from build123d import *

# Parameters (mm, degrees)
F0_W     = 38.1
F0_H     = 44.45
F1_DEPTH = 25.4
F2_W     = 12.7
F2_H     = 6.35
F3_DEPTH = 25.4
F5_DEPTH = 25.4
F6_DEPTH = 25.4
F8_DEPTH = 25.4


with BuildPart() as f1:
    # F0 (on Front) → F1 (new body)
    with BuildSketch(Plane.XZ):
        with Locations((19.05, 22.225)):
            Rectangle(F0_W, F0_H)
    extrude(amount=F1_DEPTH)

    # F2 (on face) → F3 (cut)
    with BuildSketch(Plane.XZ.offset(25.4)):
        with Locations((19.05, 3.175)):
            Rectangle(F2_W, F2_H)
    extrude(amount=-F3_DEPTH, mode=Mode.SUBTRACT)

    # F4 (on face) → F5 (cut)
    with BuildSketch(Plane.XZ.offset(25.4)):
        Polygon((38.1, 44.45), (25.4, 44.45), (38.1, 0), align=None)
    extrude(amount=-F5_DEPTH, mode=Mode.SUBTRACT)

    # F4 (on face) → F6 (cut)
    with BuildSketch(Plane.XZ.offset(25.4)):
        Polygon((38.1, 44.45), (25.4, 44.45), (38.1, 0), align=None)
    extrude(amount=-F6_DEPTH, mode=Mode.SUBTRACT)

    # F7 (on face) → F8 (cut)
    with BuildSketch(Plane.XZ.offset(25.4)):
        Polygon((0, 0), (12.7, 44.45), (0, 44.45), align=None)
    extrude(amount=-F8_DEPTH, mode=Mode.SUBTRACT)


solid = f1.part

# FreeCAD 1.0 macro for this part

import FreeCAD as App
import Part
import Sketcher
Q = App.Units.Quantity

doc = App.newDocument("Part")
body = doc.addObject("PartDesign::Body", "Body")

# Sketch on XZ plane
sketch1 = body.newObject("Sketcher::SketchObject", "Sketch")
sketch1.AttachmentSupport = (doc.getObject("XZ_Plane"), [""])
sketch1.MapMode = "FlatFace"
sketch1.addGeometry([
    Part.LineSegment(App.Vector(0, 44, 0), App.Vector(0, 0, 0)),
    Part.LineSegment(App.Vector(0, 0, 0), App.Vector(38, 0, 0)),
    Part.LineSegment(App.Vector(38, 0, 0), App.Vector(38, 44, 0)),
    Part.LineSegment(App.Vector(38, 44, 0), App.Vector(0, 44, 0)),
], False)
sketch1.addConstraint([
    Sketcher.Constraint("Coincident", 0, 2, 1, 1),
    Sketcher.Constraint("Coincident", 1, 2, 2, 1),
    Sketcher.Constraint("Coincident", 2, 2, 3, 1),
    Sketcher.Constraint("Coincident", 3, 2, 0, 1),
    Sketcher.Constraint("Vertical", 0),
    Sketcher.Constraint("Horizontal", 1),
    Sketcher.Constraint("Vertical", 2),
    Sketcher.Constraint("Horizontal", 3),
    Sketcher.Constraint("Coincident", 0, 2, -1, 1),
    Sketcher.Constraint("DistanceX", 1, 1, 1, 2, Q("1.5 in")),
    Sketcher.Constraint("DistanceY", 0, 2, 0, 1, Q("1.75 in")),
])
pad1 = body.newObject("PartDesign::Pad", "Pad")
pad1.Profile = sketch1
pad1.Length = Q("1 in")

# Sketch on XZ plane
sketch2 = body.newObject("Sketcher::SketchObject", "Sketch001")
sketch2.AttachmentSupport = (doc.getObject("XZ_Plane"), [""])
sketch2.MapMode = "FlatFace"
sketch2.AttachmentOffset = App.Placement(App.Vector(0, 0, 1 * 25.4), App.Rotation())
sketch2.addGeometry([
    Part.LineSegment(App.Vector(13, 6, 0), App.Vector(13, 0, 0)),
    Part.LineSegment(App.Vector(13, 0, 0), App.Vector(25, 0, 0)),
    Part.LineSegment(App.Vector(25, 0, 0), App.Vector(25, 6, 0)),
    Part.LineSegment(App.Vector(25, 6, 0), App.Vector(13, 6, 0)),
], False)
sketch2.addConstraint([
    Sketcher.Constraint("Coincident", 0, 2, 1, 1),
    Sketcher.Constraint("Coincident", 1, 2, 2, 1),
    Sketcher.Constraint("Coincident", 2, 2, 3, 1),
    Sketcher.Constraint("Coincident", 3, 2, 0, 1),
    Sketcher.Constraint("Vertical", 0),
    Sketcher.Constraint("Horizontal", 1),
    Sketcher.Constraint("Vertical", 2),
    Sketcher.Constraint("Horizontal", 3),
    Sketcher.Constraint("PointOnObject", 0, 2, -1),
    Sketcher.Constraint("DistanceX", 1, 1, 1, 2, Q("0.5 in")),
    Sketcher.Constraint("DistanceX", -1, 1, 1, 2, Q("1 in")),
    Sketcher.Constraint("DistanceY", 0, 2, 0, 1, Q("0.25 in")),
])
pocket1 = body.newObject("PartDesign::Pocket", "Pocket")
pocket1.Profile = sketch2
pocket1.Length = Q("1 in")

# Sketch on XZ plane
sketch3 = body.newObject("Sketcher::SketchObject", "Sketch002")
sketch3.AttachmentSupport = (doc.getObject("XZ_Plane"), [""])
sketch3.MapMode = "FlatFace"
sketch3.AttachmentOffset = App.Placement(App.Vector(0, 0, 1 * 25.4), App.Rotation())
sketch3.addGeometry([
    Part.LineSegment(App.Vector(38, 44, 0), App.Vector(25, 44, 0)),
    Part.LineSegment(App.Vector(25, 44, 0), App.Vector(38, 0, 0)),
    Part.LineSegment(App.Vector(38, 0, 0), App.Vector(38, 44, 0)),
], False)
sketch3.addConstraint([
    Sketcher.Constraint("Coincident", 0, 2, 1, 1),
    Sketcher.Constraint("Coincident", 1, 2, 2, 1),
    Sketcher.Constraint("Coincident", 2, 2, 0, 1),
    Sketcher.Constraint("Horizontal", 0),
    Sketcher.Constraint("Vertical", 2),
    Sketcher.Constraint("PointOnObject", 1, 2, -1),
    Sketcher.Constraint("DistanceX", 0, 2, 0, 1, Q("0.5 in")),
    Sketcher.Constraint("DistanceX", -1, 1, 0, 2, Q("1 in")),
    Sketcher.Constraint("DistanceY", 2, 1, 2, 2, Q("1.75 in")),
])
pocket2 = body.newObject("PartDesign::Pocket", "Pocket001")
pocket2.Profile = sketch3
pocket2.Length = Q("1 in")

# Sketch on XZ plane
sketch4 = body.newObject("Sketcher::SketchObject", "Sketch003")
sketch4.AttachmentSupport = (doc.getObject("XZ_Plane"), [""])
sketch4.MapMode = "FlatFace"
sketch4.AttachmentOffset = App.Placement(App.Vector(0, 0, 1 * 25.4), App.Rotation())
sketch4.addGeometry([
    Part.LineSegment(App.Vector(38, 44, 0), App.Vector(25, 44, 0)),
    Part.LineSegment(App.Vector(25, 44, 0), App.Vector(38, 0, 0)),
    Part.LineSegment(App.Vector(38, 0, 0), App.Vector(38, 44, 0)),
], False)
sketch4.addConstraint([
    Sketcher.Constraint("Coincident", 0, 2, 1, 1),
    Sketcher.Constraint("Coincident", 1, 2, 2, 1),
    Sketcher.Constraint("Coincident", 2, 2, 0, 1),
    Sketcher.Constraint("Horizontal", 0),
    Sketcher.Constraint("Vertical", 2),
    Sketcher.Constraint("PointOnObject", 1, 2, -1),
    Sketcher.Constraint("DistanceX", 0, 2, 0, 1, Q("0.5 in")),
    Sketcher.Constraint("DistanceX", -1, 1, 0, 2, Q("1 in")),
    Sketcher.Constraint("DistanceY", 2, 1, 2, 2, Q("1.75 in")),
])
pocket3 = body.newObject("PartDesign::Pocket", "Pocket002")
pocket3.Profile = sketch4
pocket3.Length = Q("1 in")

# Sketch on XZ plane
sketch5 = body.newObject("Sketcher::SketchObject", "Sketch004")
sketch5.AttachmentSupport = (doc.getObject("XZ_Plane"), [""])
sketch5.MapMode = "FlatFace"
sketch5.AttachmentOffset = App.Placement(App.Vector(0, 0, 1 * 25.4), App.Rotation())
sketch5.addGeometry([
    Part.LineSegment(App.Vector(0, 0, 0), App.Vector(13, 44, 0)),
    Part.LineSegment(App.Vector(13, 44, 0), App.Vector(0, 44, 0)),
    Part.LineSegment(App.Vector(0, 44, 0), App.Vector(0, 0, 0)),
], False)
sketch5.addConstraint([
    Sketcher.Constraint("Coincident", 0, 2, 1, 1),
    Sketcher.Constraint("Coincident", 1, 2, 2, 1),
    Sketcher.Constraint("Coincident", 2, 2, 0, 1),
    Sketcher.Constraint("Horizontal", 1),
    Sketcher.Constraint("Vertical", 2),
    Sketcher.Constraint("Coincident", 2, 2, -1, 1),
    Sketcher.Constraint("DistanceX", 1, 2, 1, 1, Q("0.5 in")),
    Sketcher.Constraint("DistanceY", 2, 2, 2, 1, Q("1.75 in")),
])
pocket4 = body.newObject("PartDesign::Pocket", "Pocket003")
pocket4.Profile = sketch5
pocket4.Length = Q("1 in")

doc.recompute()
